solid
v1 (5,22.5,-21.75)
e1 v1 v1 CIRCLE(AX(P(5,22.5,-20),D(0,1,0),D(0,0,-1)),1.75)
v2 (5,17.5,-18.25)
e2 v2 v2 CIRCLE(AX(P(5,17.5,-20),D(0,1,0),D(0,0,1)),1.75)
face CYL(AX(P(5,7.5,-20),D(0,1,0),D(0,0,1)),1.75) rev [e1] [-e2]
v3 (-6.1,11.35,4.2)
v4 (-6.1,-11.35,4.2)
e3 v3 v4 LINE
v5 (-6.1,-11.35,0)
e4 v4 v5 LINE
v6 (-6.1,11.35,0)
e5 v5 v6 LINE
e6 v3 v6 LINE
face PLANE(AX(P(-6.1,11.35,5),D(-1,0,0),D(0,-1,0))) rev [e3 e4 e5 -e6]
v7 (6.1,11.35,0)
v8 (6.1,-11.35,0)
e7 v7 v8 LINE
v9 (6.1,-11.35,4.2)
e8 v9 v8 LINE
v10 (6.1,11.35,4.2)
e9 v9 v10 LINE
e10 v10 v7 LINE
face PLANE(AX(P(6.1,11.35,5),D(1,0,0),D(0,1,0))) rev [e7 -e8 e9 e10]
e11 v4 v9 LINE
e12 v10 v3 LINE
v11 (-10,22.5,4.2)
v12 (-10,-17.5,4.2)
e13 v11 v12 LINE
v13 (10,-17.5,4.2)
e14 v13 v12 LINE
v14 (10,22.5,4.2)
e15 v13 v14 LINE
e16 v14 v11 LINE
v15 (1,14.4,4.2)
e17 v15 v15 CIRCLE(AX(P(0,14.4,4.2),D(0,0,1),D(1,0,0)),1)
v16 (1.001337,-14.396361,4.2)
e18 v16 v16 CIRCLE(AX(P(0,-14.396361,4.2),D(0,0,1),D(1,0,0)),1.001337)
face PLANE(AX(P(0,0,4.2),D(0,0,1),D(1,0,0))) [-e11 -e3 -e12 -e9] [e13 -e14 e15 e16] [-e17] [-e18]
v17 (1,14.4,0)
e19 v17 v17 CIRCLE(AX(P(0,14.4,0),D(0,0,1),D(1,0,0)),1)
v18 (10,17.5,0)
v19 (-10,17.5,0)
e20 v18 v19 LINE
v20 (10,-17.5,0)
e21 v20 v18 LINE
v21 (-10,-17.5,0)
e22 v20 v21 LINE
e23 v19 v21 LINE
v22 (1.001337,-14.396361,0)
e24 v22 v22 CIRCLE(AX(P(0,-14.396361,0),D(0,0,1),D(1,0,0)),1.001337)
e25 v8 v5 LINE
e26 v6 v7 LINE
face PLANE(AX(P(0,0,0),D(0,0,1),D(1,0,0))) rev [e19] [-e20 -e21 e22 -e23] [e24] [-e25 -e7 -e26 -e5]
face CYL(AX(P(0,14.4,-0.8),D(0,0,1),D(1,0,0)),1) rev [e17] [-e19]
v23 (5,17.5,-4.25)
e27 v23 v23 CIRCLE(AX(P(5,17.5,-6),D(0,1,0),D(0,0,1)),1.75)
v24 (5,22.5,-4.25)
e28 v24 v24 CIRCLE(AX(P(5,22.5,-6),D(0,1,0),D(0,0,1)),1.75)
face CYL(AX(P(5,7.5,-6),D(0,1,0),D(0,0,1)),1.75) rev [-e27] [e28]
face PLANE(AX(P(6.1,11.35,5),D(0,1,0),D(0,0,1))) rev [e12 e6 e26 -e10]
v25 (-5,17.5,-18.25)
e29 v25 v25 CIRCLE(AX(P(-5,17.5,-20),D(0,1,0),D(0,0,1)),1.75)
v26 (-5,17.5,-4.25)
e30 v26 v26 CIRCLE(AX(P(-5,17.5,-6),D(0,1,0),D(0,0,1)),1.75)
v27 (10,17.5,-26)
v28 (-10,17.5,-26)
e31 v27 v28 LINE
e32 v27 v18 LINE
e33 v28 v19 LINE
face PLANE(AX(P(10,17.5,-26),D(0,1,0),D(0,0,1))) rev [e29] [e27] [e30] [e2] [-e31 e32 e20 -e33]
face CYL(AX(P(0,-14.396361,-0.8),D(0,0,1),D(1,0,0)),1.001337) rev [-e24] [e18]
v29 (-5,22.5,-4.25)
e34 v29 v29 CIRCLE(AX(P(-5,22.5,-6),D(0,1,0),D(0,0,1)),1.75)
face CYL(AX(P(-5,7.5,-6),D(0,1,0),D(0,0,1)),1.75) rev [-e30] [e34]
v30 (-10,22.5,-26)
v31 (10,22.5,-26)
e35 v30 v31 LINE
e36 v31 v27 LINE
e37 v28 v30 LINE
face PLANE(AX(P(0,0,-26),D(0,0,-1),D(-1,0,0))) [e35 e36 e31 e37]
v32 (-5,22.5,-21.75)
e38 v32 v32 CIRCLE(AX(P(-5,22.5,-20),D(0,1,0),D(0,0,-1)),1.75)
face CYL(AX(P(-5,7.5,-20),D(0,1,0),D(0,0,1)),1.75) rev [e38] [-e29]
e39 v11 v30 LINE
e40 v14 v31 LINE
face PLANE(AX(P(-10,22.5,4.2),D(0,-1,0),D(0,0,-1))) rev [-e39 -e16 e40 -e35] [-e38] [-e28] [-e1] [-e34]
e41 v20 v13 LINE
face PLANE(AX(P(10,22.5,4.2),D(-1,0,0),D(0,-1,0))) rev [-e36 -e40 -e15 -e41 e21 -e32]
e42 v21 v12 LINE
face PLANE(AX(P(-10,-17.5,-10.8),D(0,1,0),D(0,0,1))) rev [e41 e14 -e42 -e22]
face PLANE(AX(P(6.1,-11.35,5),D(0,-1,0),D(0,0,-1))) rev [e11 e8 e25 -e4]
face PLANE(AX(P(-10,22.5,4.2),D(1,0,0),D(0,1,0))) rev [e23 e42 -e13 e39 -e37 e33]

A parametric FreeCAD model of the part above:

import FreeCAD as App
import Part
import Sketcher
Q = App.Units.Quantity


def add_polygon(sketch, points):
    """Adds a closed chain of lines whose ends are joined by coincident constraints."""
    first, n = sketch.GeometryCount, len(points)
    for a, b in zip(points, points[1:] + points[:1]):
        sketch.addGeometry(Part.LineSegment(App.Vector(*a, 0), App.Vector(*b, 0)), False)
    for i in range(n):
        sketch.addConstraint(Sketcher.Constraint("Coincident", first + i, 2, first + (i + 1) % n, 1))

doc = App.newDocument("Part")
params = doc.addObject("Spreadsheet::Sheet", "Params")
for row, (alias, value) in enumerate([
    ("sketch1_width", "20 mm"),
    ("sketch1_height", "45 mm"),
    ("pad1_length", "4.2 mm"),
    ("sketch2_width", "12.2 mm"),
    ("sketch2_height", "22.7 mm"),
    ("pocket1_length", "5 mm"),
    ("sketch3_diameter", "2 mm"),
    ("pocket2_length", "5 mm"),
    ("sketch4_width", "20 mm"),
    ("sketch4_height", "5 mm"),
    ("pad2_length", "26 mm"),
    ("sketch5_diameter", "3.5 mm"),
    ("pocket3_length", "15 mm"),
    ("sketch6_width", "20 mm"),
    ("sketch6_height", "5 mm"),
    ("pocket4_length", "15 mm"),
], start=1):
    params.set(f"A{row}", alias)
    params.set(f"B{row}", "=" + value)
    params.setAlias(f"B{row}", alias)

body = doc.addObject("PartDesign::Body", "Body")

# Sketch on XY plane
sketch1 = body.newObject("Sketcher::SketchObject", "Sketch")
sketch1.AttachmentSupport = (doc.getObject("XY_Plane"), [""])
sketch1.MapMode = "FlatFace"
add_polygon(sketch1, [(-10, 22), (-10, -22), (10, -22), (10, 22)])  # lines 0-3
sketch1.addConstraint([
    Sketcher.Constraint("Vertical", 0),
    Sketcher.Constraint("Horizontal", 1),
    Sketcher.Constraint("Vertical", 2),
    Sketcher.Constraint("Horizontal", 3),
    Sketcher.Constraint("Symmetric", 0, 2, 2, 2, -1, 1),
    Sketcher.Constraint("DistanceX", 1, 1, 1, 2, Q("20 mm")),
    Sketcher.Constraint("DistanceY", 0, 2, 0, 1, Q("45 mm")),
])
sketch1.setExpression("Constraints[9]", "Params.sketch1_width")
sketch1.setExpression("Constraints[10]", "Params.sketch1_height")
pad1 = body.newObject("PartDesign::Pad", "Pad")
pad1.Profile = sketch1
pad1.setExpression("Length", "Params.pad1_length")

# Sketch on XY plane
sketch2 = body.newObject("Sketcher::SketchObject", "Sketch001")
sketch2.AttachmentSupport = (doc.getObject("XY_Plane"), [""])
sketch2.MapMode = "FlatFace"
add_polygon(sketch2, [(6, 11), (6, -11), (-6, -11), (-6, 11)])  # lines 0-3
sketch2.addConstraint([
    Sketcher.Constraint("Vertical", 0),
    Sketcher.Constraint("Horizontal", 1),
    Sketcher.Constraint("Vertical", 2),
    Sketcher.Constraint("Horizontal", 3),
    Sketcher.Constraint("Symmetric", 0, 2, 2, 2, -1, 1),
    Sketcher.Constraint("DistanceX", 1, 2, 1, 1, Q("12.2 mm")),
    Sketcher.Constraint("DistanceY", 0, 2, 0, 1, Q("22.7 mm")),
])
sketch2.setExpression("Constraints[9]", "Params.sketch2_width")
sketch2.setExpression("Constraints[10]", "Params.sketch2_height")
pocket1 = body.newObject("PartDesign::Pocket", "Pocket")
pocket1.Profile = sketch2
pocket1.setExpression("Length", "Params.pocket1_length")
pocket1.Reversed = True

# Sketch on XY plane
sketch3 = body.newObject("Sketcher::SketchObject", "Sketch002")
sketch3.AttachmentSupport = (doc.getObject("XY_Plane"), [""])
sketch3.MapMode = "FlatFace"
sketch3.AttachmentOffset = App.Placement(App.Vector(0, 0, 4.2), App.Rotation())
sketch3.addGeometry([
    Part.Circle(App.Vector(0, 14.4, 0), App.Vector(0, 0, 1), 1),
    Part.Circle(App.Vector(0, -14.4, 0), App.Vector(0, 0, 1), 1),
], False)
sketch3.addConstraint([
    Sketcher.Constraint("PointOnObject", 0, 3, -2),
    Sketcher.Constraint("PointOnObject", 1, 3, -2),
    Sketcher.Constraint("Diameter", 0, Q("2 mm")),
    Sketcher.Constraint("DistanceY", -1, 1, 0, 3, Q("14.4 mm")),
    Sketcher.Constraint("Diameter", 1, Q("2.002675 mm")),
    Sketcher.Constraint("DistanceY", 1, 3, -1, 1, Q("14.396361 mm")),
])
sketch3.setExpression("Constraints[2]", "Params.sketch3_diameter")
pocket2 = body.newObject("PartDesign::Pocket", "Pocket001")
pocket2.Profile = sketch3
pocket2.setExpression("Length", "Params.pocket2_length")

# Sketch on XY plane
sketch4 = body.newObject("Sketcher::SketchObject", "Sketch003")
sketch4.AttachmentSupport = (doc.getObject("XY_Plane"), [""])
sketch4.MapMode = "FlatFace"
add_polygon(sketch4, [(10, 22), (10, 18), (-10, 18), (-10, 22)])  # lines 0-3
sketch4.addConstraint([
    Sketcher.Constraint("Vertical", 0),
    Sketcher.Constraint("Horizontal", 1),
    Sketcher.Constraint("Vertical", 2),
    Sketcher.Constraint("Horizontal", 3),
    Sketcher.Constraint("DistanceX", 1, 2, 1, 1, Q("20 mm")),
    Sketcher.Constraint("DistanceY", 0, 2, 0, 1, Q("5 mm")),
    Sketcher.Constraint("DistanceX", -1, 1, 0, 2, Q("10 mm")),
    Sketcher.Constraint("DistanceY", -1, 1, 0, 2, Q("17.5 mm")),
])
sketch4.setExpression("Constraints[8]", "Params.sketch4_width")
sketch4.setExpression("Constraints[9]", "Params.sketch4_height")
pad2 = body.newObject("PartDesign::Pad", "Pad001")
pad2.Profile = sketch4
pad2.setExpression("Length", "Params.pad2_length")
pad2.Reversed = True

# Sketch on XZ plane
sketch5 = body.newObject("Sketcher::SketchObject", "Sketch004")
sketch5.AttachmentSupport = (doc.getObject("XZ_Plane"), [""])
sketch5.MapMode = "FlatFace"
sketch5.AttachmentOffset = App.Placement(App.Vector(0, 0, -22.5), App.Rotation())
sketch5.addGeometry([
    Part.Circle(App.Vector(-5, -6, 0), App.Vector(0, 0, 1), 1.8),
    Part.Circle(App.Vector(5, -6, 0), App.Vector(0, 0, 1), 1.8),
    Part.Circle(App.Vector(5, -20, 0), App.Vector(0, 0, 1), 1.8),
    Part.Circle(App.Vector(-5, -20, 0), App.Vector(0, 0, 1), 1.8),
], False)
sketch5.addConstraint([
    Sketcher.Constraint("Equal", 0, 1),
    Sketcher.Constraint("Equal", 1, 2),
    Sketcher.Constraint("Equal", 2, 3),
    Sketcher.Constraint("Symmetric", 0, 3, 1, 3, -2),
    Sketcher.Constraint("Symmetric", 2, 3, 3, 3, -2),
    Sketcher.Constraint("Vertical", 1, 3, 2, 3),
    Sketcher.Constraint("Diameter", 0, Q("3.5 mm")),
    Sketcher.Constraint("DistanceX", 0, 3, -1, 1, Q("5 mm")),
    Sketcher.Constraint("DistanceY", 0, 3, -1, 1, Q("6 mm")),
    Sketcher.Constraint("DistanceY", 2, 3, -1, 1, Q("20 mm")),
])
sketch5.setExpression("Constraints[6]", "Params.sketch5_diameter")
pocket3 = body.newObject("PartDesign::Pocket", "Pocket002")
pocket3.Profile = sketch5
pocket3.setExpression("Length", "Params.pocket3_length")
pocket3.Reversed = True

# Sketch on XY plane
sketch6 = body.newObject("Sketcher::SketchObject", "Sketch005")
sketch6.AttachmentSupport = (doc.getObject("XY_Plane"), [""])
sketch6.MapMode = "FlatFace"
sketch6.AttachmentOffset = App.Placement(App.Vector(0, 0, 4.2), App.Rotation())
add_polygon(sketch6, [(-10, -18), (-10, -22), (10, -22), (10, -18)])  # lines 0-3
sketch6.addConstraint([
    Sketcher.Constraint("Vertical", 0),
    Sketcher.Constraint("Horizontal", 1),
    Sketcher.Constraint("Vertical", 2),
    Sketcher.Constraint("Horizontal", 3),
    Sketcher.Constraint("DistanceX", 1, 1, 1, 2, Q("20 mm")),
    Sketcher.Constraint("DistanceY", 0, 2, 0, 1, Q("5 mm")),
    Sketcher.Constraint("DistanceX", 0, 2, -1, 1, Q("10 mm")),
    Sketcher.Constraint("DistanceY", 0, 2, -1, 1, Q("22.5 mm")),
])
sketch6.setExpression("Constraints[8]", "Params.sketch6_width")
sketch6.setExpression("Constraints[9]", "Params.sketch6_height")
pocket4 = body.newObject("PartDesign::Pocket", "Pocket003")
pocket4.Profile = sketch6
pocket4.setExpression("Length", "Params.pocket4_length")

doc.recompute()
